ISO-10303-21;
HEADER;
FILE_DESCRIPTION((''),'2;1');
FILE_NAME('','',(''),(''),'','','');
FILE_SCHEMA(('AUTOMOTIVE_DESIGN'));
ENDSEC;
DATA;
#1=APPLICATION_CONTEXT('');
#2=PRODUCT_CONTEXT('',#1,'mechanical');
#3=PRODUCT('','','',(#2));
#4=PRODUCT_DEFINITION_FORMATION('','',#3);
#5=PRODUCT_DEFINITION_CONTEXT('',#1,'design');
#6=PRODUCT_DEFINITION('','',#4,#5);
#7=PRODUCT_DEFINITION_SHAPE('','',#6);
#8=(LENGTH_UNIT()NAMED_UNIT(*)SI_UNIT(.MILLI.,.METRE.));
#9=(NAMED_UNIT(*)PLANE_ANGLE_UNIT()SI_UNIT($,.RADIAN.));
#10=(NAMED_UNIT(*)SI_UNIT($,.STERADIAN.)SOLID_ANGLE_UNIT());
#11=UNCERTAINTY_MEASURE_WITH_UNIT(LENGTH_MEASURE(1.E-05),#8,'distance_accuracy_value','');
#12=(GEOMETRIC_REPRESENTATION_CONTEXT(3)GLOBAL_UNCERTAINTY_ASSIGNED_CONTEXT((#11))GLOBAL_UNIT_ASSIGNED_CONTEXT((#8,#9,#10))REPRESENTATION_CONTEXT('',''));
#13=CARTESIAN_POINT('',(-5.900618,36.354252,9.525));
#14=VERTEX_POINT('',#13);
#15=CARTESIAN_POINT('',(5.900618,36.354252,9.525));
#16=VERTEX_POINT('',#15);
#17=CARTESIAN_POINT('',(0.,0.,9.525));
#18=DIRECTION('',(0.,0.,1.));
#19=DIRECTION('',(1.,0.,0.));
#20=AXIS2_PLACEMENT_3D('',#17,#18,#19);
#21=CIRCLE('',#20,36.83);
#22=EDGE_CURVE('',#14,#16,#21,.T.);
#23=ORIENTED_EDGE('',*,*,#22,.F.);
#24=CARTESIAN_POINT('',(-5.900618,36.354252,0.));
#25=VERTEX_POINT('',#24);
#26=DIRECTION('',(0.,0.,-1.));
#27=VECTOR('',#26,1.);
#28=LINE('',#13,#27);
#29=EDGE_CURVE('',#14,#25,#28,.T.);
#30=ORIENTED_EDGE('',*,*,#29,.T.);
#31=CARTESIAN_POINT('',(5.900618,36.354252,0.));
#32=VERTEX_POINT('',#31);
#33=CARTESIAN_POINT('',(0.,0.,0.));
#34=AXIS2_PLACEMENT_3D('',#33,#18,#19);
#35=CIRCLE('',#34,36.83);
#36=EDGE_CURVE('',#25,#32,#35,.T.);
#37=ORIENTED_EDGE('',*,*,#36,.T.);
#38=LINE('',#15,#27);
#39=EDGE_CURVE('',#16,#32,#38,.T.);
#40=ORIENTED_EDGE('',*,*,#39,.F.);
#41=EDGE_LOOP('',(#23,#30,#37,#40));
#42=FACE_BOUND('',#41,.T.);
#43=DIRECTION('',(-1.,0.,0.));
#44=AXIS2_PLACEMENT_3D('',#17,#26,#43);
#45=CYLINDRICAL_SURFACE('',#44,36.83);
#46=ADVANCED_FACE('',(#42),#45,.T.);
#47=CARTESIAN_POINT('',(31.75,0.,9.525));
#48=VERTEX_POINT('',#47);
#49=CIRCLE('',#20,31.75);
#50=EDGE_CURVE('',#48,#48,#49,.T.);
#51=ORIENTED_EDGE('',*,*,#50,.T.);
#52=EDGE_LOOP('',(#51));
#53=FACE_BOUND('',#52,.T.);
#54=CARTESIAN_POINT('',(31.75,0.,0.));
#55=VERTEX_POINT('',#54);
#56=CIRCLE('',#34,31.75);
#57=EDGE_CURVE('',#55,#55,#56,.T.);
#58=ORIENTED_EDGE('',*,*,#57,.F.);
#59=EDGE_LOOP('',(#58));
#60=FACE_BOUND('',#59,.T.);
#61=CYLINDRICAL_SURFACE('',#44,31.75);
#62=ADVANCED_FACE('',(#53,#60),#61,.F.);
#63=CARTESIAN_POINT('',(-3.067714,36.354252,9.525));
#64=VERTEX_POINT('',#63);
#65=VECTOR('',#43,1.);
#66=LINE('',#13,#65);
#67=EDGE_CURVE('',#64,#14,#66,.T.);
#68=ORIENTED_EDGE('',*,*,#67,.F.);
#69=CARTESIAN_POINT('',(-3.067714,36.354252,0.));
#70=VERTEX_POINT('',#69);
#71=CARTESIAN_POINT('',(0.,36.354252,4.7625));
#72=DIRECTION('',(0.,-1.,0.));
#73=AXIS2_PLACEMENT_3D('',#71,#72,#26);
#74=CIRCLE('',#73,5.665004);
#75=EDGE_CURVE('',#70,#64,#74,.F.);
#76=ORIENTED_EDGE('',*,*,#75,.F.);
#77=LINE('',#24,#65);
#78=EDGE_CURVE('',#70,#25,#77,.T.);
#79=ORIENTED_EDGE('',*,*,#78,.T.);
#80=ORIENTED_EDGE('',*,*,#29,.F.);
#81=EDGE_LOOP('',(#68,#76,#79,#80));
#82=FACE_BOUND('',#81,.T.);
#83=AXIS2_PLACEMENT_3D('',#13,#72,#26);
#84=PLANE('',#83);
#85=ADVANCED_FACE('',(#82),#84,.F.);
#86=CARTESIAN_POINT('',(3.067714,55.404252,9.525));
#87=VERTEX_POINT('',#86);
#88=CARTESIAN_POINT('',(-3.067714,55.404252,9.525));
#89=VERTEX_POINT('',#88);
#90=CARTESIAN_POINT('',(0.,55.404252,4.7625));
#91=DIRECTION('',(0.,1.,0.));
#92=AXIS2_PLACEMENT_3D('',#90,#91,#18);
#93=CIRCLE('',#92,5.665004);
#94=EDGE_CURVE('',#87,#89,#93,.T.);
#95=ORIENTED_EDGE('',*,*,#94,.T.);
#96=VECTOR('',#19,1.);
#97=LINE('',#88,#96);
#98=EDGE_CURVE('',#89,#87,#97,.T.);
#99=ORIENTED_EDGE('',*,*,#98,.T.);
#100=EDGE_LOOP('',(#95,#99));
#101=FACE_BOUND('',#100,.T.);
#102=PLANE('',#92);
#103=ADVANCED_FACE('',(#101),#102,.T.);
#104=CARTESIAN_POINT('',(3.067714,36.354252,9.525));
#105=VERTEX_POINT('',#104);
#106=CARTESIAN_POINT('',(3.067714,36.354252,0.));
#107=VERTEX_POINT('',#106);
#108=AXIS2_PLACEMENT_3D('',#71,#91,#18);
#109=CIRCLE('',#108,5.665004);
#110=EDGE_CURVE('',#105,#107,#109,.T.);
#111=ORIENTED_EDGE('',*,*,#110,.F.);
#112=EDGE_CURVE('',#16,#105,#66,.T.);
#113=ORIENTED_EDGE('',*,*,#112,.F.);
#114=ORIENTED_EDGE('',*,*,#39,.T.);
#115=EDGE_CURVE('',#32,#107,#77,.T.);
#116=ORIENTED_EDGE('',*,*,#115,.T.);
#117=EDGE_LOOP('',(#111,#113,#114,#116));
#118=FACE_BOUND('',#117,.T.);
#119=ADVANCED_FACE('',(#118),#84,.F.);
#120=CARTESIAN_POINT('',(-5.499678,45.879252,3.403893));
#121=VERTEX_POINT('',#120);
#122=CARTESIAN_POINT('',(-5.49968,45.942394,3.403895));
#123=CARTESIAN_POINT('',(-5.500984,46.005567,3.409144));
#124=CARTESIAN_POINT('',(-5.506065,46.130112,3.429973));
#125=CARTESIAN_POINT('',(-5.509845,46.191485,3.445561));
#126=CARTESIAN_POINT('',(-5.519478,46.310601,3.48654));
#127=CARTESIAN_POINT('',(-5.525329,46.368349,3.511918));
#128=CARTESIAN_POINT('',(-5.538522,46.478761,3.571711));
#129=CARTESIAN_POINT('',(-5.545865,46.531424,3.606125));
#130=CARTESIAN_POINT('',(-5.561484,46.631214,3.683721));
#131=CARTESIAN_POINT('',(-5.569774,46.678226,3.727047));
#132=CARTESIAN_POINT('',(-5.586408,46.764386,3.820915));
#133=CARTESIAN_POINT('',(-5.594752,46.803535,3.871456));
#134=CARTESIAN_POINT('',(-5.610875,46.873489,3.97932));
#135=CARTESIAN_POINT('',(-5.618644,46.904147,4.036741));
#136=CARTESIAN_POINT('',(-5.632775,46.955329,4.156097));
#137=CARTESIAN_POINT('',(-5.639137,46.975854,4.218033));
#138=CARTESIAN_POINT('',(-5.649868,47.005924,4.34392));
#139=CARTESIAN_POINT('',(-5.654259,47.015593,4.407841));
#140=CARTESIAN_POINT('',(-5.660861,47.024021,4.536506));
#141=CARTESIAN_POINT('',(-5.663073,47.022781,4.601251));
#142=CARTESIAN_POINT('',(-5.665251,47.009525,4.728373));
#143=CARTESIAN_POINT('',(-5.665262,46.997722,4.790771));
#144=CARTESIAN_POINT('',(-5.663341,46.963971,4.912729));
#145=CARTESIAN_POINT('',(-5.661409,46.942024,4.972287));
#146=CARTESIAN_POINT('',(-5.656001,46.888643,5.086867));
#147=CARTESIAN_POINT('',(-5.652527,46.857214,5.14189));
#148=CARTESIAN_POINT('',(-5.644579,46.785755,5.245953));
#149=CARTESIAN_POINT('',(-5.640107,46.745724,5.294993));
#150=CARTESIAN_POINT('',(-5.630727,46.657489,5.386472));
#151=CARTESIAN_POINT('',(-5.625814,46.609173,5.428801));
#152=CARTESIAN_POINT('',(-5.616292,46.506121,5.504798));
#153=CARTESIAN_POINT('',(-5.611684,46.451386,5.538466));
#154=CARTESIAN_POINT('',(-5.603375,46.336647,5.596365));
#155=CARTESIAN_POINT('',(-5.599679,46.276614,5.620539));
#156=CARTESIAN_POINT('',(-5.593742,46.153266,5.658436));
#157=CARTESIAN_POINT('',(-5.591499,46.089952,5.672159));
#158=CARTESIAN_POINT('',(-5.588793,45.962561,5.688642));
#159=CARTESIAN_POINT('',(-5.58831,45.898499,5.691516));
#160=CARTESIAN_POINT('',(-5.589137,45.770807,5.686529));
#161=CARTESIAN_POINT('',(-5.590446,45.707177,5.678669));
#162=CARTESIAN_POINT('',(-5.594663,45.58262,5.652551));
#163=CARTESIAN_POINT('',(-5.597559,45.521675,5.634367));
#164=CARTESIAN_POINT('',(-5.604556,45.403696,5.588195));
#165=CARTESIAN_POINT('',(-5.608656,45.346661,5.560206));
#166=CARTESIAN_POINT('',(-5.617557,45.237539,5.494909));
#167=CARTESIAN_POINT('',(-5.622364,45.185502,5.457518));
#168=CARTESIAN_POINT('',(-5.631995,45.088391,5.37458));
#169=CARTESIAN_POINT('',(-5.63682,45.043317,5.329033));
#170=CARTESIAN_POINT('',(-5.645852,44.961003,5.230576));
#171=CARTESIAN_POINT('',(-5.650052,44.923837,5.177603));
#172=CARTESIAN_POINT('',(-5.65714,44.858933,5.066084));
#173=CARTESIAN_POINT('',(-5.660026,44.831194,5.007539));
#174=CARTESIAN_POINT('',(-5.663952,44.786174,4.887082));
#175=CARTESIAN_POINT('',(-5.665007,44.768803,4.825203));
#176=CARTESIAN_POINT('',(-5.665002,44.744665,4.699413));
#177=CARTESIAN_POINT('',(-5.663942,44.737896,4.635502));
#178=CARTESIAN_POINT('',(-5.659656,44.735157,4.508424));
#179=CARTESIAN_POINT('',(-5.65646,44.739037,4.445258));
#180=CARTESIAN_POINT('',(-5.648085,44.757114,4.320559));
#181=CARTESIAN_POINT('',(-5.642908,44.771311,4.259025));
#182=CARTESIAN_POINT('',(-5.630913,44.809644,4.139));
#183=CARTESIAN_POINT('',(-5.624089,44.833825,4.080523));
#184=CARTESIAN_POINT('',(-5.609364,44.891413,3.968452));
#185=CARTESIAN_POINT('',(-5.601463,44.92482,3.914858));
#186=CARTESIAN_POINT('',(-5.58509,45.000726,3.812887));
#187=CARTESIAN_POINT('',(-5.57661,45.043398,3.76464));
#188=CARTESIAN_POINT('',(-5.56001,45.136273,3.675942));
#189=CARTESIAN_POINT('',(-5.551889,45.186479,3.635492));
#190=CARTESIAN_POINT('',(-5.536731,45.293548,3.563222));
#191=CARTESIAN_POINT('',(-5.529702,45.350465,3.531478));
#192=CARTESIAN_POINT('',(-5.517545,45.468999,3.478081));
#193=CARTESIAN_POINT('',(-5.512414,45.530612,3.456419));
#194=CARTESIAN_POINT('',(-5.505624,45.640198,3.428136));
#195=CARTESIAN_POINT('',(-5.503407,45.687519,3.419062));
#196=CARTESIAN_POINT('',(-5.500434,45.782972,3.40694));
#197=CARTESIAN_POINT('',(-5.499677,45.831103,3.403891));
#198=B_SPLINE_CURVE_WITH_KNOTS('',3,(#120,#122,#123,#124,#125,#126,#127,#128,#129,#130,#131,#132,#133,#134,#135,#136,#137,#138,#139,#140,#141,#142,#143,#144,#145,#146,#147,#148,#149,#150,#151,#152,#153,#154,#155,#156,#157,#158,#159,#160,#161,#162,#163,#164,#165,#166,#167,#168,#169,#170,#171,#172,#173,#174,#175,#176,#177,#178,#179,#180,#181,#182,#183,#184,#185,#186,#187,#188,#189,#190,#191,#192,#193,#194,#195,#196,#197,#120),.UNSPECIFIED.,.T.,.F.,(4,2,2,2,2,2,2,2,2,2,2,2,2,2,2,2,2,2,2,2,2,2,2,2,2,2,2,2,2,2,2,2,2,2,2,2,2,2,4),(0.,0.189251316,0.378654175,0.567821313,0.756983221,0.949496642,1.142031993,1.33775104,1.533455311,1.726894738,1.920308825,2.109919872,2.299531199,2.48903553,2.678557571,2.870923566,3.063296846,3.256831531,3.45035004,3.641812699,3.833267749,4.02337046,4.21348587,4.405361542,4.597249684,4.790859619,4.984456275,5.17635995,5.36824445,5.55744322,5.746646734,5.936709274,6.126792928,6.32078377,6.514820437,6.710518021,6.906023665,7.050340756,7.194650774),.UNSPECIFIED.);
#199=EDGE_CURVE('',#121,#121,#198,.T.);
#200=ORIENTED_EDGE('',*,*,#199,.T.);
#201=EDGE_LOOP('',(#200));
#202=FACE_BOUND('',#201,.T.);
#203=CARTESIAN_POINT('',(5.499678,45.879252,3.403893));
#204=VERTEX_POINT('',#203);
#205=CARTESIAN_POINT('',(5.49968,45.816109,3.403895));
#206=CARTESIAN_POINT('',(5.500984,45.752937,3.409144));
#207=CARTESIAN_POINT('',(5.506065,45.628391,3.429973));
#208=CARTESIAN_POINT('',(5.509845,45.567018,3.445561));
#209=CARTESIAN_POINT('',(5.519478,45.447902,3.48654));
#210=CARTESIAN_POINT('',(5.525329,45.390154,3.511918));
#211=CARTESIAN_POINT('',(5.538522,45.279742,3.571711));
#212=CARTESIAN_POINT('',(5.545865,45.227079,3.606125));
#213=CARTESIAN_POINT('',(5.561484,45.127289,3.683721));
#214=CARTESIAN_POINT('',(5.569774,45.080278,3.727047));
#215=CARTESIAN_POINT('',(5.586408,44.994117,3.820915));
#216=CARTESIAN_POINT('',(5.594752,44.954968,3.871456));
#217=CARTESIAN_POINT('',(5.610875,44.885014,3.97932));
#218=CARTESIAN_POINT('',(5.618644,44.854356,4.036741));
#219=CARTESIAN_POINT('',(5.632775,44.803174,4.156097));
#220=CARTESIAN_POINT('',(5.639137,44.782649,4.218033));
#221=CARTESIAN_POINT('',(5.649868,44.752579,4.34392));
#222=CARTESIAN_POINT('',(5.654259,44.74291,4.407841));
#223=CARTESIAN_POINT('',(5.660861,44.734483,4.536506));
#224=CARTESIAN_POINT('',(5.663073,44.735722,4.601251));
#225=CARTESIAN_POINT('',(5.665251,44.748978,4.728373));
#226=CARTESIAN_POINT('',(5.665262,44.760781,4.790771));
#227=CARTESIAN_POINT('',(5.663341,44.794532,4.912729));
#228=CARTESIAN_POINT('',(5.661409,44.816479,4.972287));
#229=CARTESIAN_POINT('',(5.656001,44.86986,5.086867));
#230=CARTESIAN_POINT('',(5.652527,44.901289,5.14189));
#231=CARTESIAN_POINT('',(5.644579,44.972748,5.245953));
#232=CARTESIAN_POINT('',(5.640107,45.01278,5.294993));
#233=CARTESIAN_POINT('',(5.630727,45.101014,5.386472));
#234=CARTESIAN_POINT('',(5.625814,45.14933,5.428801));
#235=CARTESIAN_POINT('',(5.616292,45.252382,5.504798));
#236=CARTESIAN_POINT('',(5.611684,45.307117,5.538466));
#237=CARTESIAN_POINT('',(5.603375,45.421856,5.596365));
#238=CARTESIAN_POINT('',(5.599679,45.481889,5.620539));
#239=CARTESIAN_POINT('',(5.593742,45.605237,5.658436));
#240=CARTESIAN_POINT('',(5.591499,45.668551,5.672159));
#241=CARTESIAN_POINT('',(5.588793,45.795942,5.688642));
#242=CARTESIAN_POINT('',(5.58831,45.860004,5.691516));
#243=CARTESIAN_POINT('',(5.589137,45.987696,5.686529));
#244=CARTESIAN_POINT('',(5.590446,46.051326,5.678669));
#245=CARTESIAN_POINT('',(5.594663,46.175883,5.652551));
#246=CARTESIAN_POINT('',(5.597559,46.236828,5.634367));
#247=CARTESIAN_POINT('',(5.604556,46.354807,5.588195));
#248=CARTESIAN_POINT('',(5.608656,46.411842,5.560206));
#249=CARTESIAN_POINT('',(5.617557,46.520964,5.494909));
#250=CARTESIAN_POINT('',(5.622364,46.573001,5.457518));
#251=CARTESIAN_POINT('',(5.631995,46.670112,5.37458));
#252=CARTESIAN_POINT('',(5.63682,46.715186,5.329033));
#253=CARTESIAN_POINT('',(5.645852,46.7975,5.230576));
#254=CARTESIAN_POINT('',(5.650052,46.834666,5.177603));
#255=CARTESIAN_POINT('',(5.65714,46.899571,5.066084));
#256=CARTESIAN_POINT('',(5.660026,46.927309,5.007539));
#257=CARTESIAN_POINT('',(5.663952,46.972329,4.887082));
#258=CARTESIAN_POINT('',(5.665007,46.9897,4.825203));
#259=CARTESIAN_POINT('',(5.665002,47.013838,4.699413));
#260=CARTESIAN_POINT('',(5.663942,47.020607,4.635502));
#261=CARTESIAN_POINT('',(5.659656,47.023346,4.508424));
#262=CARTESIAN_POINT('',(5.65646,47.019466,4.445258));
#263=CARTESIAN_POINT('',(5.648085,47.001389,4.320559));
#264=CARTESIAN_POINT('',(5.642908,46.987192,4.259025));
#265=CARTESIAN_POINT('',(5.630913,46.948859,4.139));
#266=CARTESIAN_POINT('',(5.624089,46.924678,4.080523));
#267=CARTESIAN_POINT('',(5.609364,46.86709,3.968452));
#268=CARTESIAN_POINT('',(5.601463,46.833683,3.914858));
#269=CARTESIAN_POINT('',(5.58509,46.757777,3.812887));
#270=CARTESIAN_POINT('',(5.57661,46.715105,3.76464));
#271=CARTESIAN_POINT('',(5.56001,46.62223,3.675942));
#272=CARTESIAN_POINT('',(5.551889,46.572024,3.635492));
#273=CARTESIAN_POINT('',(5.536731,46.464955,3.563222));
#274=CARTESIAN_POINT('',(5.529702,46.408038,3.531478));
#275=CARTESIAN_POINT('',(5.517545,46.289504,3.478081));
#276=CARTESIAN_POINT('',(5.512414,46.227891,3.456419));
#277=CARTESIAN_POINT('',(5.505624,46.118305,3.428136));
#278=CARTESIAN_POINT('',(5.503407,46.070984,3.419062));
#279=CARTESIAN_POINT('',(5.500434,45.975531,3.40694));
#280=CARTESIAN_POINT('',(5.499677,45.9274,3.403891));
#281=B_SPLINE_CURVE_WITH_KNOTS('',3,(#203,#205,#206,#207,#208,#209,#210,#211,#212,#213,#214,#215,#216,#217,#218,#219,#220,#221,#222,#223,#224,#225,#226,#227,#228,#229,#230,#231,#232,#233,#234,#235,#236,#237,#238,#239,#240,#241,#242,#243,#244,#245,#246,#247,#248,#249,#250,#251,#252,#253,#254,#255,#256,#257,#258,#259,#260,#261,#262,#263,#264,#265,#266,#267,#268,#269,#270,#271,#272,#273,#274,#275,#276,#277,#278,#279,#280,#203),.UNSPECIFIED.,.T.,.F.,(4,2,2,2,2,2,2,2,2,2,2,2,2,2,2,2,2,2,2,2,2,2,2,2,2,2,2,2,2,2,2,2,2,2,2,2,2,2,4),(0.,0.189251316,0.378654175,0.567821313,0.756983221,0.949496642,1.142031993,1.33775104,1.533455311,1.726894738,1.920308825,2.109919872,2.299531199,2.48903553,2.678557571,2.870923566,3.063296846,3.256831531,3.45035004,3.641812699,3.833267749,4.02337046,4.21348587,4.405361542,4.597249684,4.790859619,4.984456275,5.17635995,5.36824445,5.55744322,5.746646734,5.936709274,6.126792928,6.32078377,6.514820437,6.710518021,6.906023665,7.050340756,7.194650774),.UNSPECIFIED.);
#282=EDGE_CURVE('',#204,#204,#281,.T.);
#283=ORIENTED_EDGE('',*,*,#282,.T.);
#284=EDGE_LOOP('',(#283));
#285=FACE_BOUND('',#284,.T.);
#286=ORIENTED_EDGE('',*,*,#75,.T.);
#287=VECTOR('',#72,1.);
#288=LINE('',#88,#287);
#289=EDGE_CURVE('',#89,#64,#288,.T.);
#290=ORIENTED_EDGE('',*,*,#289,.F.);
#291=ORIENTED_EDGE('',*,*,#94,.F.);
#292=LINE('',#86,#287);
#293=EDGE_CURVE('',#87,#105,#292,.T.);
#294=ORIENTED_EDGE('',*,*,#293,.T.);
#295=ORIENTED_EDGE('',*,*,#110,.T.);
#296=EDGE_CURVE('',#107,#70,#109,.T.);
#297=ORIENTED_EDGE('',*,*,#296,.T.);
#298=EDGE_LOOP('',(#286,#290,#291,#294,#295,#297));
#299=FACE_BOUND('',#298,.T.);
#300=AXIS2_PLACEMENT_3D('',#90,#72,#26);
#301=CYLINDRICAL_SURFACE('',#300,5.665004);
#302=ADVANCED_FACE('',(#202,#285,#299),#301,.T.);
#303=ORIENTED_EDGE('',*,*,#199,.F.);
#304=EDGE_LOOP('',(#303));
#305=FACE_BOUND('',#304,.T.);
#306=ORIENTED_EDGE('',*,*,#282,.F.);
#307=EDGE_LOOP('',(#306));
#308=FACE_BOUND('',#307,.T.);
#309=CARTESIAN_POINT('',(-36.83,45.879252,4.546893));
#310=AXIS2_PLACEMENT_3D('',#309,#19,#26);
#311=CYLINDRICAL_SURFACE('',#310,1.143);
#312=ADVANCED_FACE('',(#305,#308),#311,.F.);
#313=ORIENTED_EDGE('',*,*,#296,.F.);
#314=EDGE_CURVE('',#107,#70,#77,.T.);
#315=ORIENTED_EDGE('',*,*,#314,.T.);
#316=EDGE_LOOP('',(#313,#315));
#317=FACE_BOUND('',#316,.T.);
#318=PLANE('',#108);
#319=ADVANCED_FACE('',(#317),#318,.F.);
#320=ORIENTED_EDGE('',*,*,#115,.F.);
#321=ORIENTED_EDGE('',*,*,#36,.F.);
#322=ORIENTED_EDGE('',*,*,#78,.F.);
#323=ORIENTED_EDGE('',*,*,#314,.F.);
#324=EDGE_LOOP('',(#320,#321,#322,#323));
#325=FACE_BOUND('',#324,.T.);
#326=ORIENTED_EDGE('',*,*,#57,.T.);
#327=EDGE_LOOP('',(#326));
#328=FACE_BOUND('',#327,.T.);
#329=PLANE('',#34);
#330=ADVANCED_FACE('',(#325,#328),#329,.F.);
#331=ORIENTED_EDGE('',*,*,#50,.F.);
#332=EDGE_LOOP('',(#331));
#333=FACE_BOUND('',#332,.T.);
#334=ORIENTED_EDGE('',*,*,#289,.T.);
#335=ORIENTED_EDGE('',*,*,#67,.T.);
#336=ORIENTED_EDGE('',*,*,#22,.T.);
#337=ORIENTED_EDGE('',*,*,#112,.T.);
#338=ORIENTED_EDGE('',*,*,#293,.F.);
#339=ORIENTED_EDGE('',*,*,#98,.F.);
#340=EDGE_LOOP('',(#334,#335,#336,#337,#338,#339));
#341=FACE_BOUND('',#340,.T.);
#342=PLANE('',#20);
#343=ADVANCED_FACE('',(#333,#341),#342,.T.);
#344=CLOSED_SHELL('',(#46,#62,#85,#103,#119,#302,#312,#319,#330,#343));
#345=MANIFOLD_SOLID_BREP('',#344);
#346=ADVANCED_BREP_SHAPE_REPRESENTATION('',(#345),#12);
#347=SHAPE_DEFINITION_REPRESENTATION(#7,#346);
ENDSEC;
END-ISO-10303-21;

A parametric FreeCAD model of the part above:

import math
import FreeCAD as App
import Part
import Sketcher
from FreeCAD import Vector
Q = App.Units.Quantity


def add_polygon(sketch, points):
    """Adds a closed chain of lines whose ends are joined by coincident constraints."""
    first, n = sketch.GeometryCount, len(points)
    for a, b in zip(points, points[1:] + points[:1]):
        sketch.addGeometry(Part.LineSegment(App.Vector(*a, 0), App.Vector(*b, 0)), False)
    for i in range(n):
        sketch.addConstraint(Sketcher.Constraint("Coincident", first + i, 2, first + (i + 1) % n, 1))

doc = App.newDocument("Part")
body = doc.addObject("PartDesign::Body", "Body")

# Sketch on XY plane
sketch1 = doc.addObject("Sketcher::SketchObject", "Sketch")
body.addObject(sketch1)
sketch1.AttachmentSupport = (doc.XY_Plane, [""])
sketch1.MapMode = "FlatFace"
sketch1.addGeometry(Part.LineSegment(Vector(6, 36, 0), Vector(-6, 36, 0)), False)
sketch1.addGeometry(Part.ArcOfCircle(Part.Circle(Vector(0, 0, 0), Vector(0, 0, 1), 37), math.radians(99), math.radians(441)), False)
sketch1.addGeometry(Part.Circle(Vector(0, 0, 0), Vector(0, 0, 1), 32), False)
sketch1.addConstraint(Sketcher.Constraint("Coincident", 0, 1, 1, 2))
sketch1.addConstraint(Sketcher.Constraint("Coincident", 1, 1, 0, 2))
sketch1.addConstraint(Sketcher.Constraint("Horizontal", 0))
sketch1.addConstraint(Sketcher.Constraint("Coincident", 1, 3, -1, 1))
sketch1.addConstraint(Sketcher.Constraint("Coincident", 2, 3, -1, 1))
sketch1.addConstraint(Sketcher.Constraint("Diameter", 2, Q("2.5 in")))
sketch1.addConstraint(Sketcher.Constraint("Radius", 1, Q("1.45 in")))
sketch1.addConstraint(Sketcher.Constraint("DistanceX", 0, 2, 0, 1, Q("11.801236 mm")))
pad1 = doc.addObject("PartDesign::Pad", "Pad")
body.addObject(pad1)
pad1.Profile = sketch1
pad1.Length = Q("0.375 in")

# Sketch on XZ plane
sketch2 = doc.addObject("Sketcher::SketchObject", "Sketch001")
body.addObject(sketch2)
sketch2.AttachmentSupport = (doc.XZ_Plane, [""])
sketch2.MapMode = "FlatFace"
sketch2.AttachmentOffset = App.Placement(Vector(0, 0, -36.354252), App.Rotation())
sketch2.addGeometry(Part.LineSegment(Vector(-3, 10, 0), Vector(3, 10, 0)), False)
sketch2.addGeometry(Part.ArcOfCircle(Part.Circle(Vector(0, 5, 0), Vector(0, 0, 1), 6), math.radians(123), math.radians(417)), False)
sketch2.addConstraint(Sketcher.Constraint("Coincident", 0, 1, 1, 1))
sketch2.addConstraint(Sketcher.Constraint("Coincident", 1, 2, 0, 2))
sketch2.addConstraint(Sketcher.Constraint("Horizontal", 0))
sketch2.addConstraint(Sketcher.Constraint("PointOnObject", 1, 3, -2))
sketch2.addConstraint(Sketcher.Constraint("DistanceY", -1, 1, 1, 3, Q("0.1875 in")))
sketch2.addConstraint(Sketcher.Constraint("DistanceY", -1, 1, 0, 1, Q("0.375 in")))
sketch2.addConstraint(Sketcher.Constraint("Radius", 1, Q("5.665004 mm")))
pad2 = doc.addObject("PartDesign::Pad", "Pad001")
body.addObject(pad2)
pad2.Profile = sketch2
pad2.Length = Q("0.75 in")
pad2.Reversed = True

# Sketch on YZ plane
sketch3 = doc.addObject("Sketcher::SketchObject", "Sketch002")
body.addObject(sketch3)
sketch3.AttachmentSupport = (doc.YZ_Plane, [""])
sketch3.MapMode = "FlatFace"
sketch3.AttachmentOffset = App.Placement(Vector(0, 0, 5.900618), App.Rotation())
sketch3.addGeometry(Part.Circle(Vector(45.9, 4.5, 0), Vector(0, 0, 1), 1.1), False)
sketch3.addConstraint(Sketcher.Constraint("Diameter", 0, Q("0.09 in")))
sketch3.addConstraint(Sketcher.Constraint("DistanceX", -1, 1, 0, 3, Q("45.879252 mm")))
sketch3.addConstraint(Sketcher.Constraint("DistanceY", -1, 1, 0, 3, Q("4.546893 mm")))
pocket1 = doc.addObject("PartDesign::Pocket", "Pocket")
body.addObject(pocket1)
pocket1.Profile = sketch3
pocket1.Type = "ThroughAll"

# Sketch on XZ plane
sketch4 = doc.addObject("Sketcher::SketchObject", "Sketch003")
body.addObject(sketch4)
sketch4.AttachmentSupport = (doc.XZ_Plane, [""])
sketch4.MapMode = "FlatFace"
sketch4.AttachmentOffset = App.Placement(Vector(0, 0, -55.404252), App.Rotation())
add_polygon(sketch4, [(-6, 9.6), (-6, 13.6), (5.5, 13.6), (5.5, 9.6)])  # lines 0-3
sketch4.addConstraint(Sketcher.Constraint("Vertical", 0))
sketch4.addConstraint(Sketcher.Constraint("Horizontal", 1))
sketch4.addConstraint(Sketcher.Constraint("Vertical", 2))
sketch4.addConstraint(Sketcher.Constraint("Horizontal", 3))
sketch4.addConstraint(Sketcher.Constraint("DistanceX", 1, 1, 1, 2, Q("11.567255 mm")))
sketch4.addConstraint(Sketcher.Constraint("DistanceY", 0, 1, 0, 2, Q("3.936356 mm")))
sketch4.addConstraint(Sketcher.Constraint("DistanceX", 0, 2, -1, 1, Q("6.043649 mm")))
sketch4.addConstraint(Sketcher.Constraint("DistanceY", -1, 1, 2, 2, Q("9.639848 mm")))
pocket2 = doc.addObject("PartDesign::Pocket", "Pocket001")
body.addObject(pocket2)
pocket2.Profile = sketch4
pocket2.Type = "ThroughAll"
pocket2.Reversed = True

doc.recompute()
